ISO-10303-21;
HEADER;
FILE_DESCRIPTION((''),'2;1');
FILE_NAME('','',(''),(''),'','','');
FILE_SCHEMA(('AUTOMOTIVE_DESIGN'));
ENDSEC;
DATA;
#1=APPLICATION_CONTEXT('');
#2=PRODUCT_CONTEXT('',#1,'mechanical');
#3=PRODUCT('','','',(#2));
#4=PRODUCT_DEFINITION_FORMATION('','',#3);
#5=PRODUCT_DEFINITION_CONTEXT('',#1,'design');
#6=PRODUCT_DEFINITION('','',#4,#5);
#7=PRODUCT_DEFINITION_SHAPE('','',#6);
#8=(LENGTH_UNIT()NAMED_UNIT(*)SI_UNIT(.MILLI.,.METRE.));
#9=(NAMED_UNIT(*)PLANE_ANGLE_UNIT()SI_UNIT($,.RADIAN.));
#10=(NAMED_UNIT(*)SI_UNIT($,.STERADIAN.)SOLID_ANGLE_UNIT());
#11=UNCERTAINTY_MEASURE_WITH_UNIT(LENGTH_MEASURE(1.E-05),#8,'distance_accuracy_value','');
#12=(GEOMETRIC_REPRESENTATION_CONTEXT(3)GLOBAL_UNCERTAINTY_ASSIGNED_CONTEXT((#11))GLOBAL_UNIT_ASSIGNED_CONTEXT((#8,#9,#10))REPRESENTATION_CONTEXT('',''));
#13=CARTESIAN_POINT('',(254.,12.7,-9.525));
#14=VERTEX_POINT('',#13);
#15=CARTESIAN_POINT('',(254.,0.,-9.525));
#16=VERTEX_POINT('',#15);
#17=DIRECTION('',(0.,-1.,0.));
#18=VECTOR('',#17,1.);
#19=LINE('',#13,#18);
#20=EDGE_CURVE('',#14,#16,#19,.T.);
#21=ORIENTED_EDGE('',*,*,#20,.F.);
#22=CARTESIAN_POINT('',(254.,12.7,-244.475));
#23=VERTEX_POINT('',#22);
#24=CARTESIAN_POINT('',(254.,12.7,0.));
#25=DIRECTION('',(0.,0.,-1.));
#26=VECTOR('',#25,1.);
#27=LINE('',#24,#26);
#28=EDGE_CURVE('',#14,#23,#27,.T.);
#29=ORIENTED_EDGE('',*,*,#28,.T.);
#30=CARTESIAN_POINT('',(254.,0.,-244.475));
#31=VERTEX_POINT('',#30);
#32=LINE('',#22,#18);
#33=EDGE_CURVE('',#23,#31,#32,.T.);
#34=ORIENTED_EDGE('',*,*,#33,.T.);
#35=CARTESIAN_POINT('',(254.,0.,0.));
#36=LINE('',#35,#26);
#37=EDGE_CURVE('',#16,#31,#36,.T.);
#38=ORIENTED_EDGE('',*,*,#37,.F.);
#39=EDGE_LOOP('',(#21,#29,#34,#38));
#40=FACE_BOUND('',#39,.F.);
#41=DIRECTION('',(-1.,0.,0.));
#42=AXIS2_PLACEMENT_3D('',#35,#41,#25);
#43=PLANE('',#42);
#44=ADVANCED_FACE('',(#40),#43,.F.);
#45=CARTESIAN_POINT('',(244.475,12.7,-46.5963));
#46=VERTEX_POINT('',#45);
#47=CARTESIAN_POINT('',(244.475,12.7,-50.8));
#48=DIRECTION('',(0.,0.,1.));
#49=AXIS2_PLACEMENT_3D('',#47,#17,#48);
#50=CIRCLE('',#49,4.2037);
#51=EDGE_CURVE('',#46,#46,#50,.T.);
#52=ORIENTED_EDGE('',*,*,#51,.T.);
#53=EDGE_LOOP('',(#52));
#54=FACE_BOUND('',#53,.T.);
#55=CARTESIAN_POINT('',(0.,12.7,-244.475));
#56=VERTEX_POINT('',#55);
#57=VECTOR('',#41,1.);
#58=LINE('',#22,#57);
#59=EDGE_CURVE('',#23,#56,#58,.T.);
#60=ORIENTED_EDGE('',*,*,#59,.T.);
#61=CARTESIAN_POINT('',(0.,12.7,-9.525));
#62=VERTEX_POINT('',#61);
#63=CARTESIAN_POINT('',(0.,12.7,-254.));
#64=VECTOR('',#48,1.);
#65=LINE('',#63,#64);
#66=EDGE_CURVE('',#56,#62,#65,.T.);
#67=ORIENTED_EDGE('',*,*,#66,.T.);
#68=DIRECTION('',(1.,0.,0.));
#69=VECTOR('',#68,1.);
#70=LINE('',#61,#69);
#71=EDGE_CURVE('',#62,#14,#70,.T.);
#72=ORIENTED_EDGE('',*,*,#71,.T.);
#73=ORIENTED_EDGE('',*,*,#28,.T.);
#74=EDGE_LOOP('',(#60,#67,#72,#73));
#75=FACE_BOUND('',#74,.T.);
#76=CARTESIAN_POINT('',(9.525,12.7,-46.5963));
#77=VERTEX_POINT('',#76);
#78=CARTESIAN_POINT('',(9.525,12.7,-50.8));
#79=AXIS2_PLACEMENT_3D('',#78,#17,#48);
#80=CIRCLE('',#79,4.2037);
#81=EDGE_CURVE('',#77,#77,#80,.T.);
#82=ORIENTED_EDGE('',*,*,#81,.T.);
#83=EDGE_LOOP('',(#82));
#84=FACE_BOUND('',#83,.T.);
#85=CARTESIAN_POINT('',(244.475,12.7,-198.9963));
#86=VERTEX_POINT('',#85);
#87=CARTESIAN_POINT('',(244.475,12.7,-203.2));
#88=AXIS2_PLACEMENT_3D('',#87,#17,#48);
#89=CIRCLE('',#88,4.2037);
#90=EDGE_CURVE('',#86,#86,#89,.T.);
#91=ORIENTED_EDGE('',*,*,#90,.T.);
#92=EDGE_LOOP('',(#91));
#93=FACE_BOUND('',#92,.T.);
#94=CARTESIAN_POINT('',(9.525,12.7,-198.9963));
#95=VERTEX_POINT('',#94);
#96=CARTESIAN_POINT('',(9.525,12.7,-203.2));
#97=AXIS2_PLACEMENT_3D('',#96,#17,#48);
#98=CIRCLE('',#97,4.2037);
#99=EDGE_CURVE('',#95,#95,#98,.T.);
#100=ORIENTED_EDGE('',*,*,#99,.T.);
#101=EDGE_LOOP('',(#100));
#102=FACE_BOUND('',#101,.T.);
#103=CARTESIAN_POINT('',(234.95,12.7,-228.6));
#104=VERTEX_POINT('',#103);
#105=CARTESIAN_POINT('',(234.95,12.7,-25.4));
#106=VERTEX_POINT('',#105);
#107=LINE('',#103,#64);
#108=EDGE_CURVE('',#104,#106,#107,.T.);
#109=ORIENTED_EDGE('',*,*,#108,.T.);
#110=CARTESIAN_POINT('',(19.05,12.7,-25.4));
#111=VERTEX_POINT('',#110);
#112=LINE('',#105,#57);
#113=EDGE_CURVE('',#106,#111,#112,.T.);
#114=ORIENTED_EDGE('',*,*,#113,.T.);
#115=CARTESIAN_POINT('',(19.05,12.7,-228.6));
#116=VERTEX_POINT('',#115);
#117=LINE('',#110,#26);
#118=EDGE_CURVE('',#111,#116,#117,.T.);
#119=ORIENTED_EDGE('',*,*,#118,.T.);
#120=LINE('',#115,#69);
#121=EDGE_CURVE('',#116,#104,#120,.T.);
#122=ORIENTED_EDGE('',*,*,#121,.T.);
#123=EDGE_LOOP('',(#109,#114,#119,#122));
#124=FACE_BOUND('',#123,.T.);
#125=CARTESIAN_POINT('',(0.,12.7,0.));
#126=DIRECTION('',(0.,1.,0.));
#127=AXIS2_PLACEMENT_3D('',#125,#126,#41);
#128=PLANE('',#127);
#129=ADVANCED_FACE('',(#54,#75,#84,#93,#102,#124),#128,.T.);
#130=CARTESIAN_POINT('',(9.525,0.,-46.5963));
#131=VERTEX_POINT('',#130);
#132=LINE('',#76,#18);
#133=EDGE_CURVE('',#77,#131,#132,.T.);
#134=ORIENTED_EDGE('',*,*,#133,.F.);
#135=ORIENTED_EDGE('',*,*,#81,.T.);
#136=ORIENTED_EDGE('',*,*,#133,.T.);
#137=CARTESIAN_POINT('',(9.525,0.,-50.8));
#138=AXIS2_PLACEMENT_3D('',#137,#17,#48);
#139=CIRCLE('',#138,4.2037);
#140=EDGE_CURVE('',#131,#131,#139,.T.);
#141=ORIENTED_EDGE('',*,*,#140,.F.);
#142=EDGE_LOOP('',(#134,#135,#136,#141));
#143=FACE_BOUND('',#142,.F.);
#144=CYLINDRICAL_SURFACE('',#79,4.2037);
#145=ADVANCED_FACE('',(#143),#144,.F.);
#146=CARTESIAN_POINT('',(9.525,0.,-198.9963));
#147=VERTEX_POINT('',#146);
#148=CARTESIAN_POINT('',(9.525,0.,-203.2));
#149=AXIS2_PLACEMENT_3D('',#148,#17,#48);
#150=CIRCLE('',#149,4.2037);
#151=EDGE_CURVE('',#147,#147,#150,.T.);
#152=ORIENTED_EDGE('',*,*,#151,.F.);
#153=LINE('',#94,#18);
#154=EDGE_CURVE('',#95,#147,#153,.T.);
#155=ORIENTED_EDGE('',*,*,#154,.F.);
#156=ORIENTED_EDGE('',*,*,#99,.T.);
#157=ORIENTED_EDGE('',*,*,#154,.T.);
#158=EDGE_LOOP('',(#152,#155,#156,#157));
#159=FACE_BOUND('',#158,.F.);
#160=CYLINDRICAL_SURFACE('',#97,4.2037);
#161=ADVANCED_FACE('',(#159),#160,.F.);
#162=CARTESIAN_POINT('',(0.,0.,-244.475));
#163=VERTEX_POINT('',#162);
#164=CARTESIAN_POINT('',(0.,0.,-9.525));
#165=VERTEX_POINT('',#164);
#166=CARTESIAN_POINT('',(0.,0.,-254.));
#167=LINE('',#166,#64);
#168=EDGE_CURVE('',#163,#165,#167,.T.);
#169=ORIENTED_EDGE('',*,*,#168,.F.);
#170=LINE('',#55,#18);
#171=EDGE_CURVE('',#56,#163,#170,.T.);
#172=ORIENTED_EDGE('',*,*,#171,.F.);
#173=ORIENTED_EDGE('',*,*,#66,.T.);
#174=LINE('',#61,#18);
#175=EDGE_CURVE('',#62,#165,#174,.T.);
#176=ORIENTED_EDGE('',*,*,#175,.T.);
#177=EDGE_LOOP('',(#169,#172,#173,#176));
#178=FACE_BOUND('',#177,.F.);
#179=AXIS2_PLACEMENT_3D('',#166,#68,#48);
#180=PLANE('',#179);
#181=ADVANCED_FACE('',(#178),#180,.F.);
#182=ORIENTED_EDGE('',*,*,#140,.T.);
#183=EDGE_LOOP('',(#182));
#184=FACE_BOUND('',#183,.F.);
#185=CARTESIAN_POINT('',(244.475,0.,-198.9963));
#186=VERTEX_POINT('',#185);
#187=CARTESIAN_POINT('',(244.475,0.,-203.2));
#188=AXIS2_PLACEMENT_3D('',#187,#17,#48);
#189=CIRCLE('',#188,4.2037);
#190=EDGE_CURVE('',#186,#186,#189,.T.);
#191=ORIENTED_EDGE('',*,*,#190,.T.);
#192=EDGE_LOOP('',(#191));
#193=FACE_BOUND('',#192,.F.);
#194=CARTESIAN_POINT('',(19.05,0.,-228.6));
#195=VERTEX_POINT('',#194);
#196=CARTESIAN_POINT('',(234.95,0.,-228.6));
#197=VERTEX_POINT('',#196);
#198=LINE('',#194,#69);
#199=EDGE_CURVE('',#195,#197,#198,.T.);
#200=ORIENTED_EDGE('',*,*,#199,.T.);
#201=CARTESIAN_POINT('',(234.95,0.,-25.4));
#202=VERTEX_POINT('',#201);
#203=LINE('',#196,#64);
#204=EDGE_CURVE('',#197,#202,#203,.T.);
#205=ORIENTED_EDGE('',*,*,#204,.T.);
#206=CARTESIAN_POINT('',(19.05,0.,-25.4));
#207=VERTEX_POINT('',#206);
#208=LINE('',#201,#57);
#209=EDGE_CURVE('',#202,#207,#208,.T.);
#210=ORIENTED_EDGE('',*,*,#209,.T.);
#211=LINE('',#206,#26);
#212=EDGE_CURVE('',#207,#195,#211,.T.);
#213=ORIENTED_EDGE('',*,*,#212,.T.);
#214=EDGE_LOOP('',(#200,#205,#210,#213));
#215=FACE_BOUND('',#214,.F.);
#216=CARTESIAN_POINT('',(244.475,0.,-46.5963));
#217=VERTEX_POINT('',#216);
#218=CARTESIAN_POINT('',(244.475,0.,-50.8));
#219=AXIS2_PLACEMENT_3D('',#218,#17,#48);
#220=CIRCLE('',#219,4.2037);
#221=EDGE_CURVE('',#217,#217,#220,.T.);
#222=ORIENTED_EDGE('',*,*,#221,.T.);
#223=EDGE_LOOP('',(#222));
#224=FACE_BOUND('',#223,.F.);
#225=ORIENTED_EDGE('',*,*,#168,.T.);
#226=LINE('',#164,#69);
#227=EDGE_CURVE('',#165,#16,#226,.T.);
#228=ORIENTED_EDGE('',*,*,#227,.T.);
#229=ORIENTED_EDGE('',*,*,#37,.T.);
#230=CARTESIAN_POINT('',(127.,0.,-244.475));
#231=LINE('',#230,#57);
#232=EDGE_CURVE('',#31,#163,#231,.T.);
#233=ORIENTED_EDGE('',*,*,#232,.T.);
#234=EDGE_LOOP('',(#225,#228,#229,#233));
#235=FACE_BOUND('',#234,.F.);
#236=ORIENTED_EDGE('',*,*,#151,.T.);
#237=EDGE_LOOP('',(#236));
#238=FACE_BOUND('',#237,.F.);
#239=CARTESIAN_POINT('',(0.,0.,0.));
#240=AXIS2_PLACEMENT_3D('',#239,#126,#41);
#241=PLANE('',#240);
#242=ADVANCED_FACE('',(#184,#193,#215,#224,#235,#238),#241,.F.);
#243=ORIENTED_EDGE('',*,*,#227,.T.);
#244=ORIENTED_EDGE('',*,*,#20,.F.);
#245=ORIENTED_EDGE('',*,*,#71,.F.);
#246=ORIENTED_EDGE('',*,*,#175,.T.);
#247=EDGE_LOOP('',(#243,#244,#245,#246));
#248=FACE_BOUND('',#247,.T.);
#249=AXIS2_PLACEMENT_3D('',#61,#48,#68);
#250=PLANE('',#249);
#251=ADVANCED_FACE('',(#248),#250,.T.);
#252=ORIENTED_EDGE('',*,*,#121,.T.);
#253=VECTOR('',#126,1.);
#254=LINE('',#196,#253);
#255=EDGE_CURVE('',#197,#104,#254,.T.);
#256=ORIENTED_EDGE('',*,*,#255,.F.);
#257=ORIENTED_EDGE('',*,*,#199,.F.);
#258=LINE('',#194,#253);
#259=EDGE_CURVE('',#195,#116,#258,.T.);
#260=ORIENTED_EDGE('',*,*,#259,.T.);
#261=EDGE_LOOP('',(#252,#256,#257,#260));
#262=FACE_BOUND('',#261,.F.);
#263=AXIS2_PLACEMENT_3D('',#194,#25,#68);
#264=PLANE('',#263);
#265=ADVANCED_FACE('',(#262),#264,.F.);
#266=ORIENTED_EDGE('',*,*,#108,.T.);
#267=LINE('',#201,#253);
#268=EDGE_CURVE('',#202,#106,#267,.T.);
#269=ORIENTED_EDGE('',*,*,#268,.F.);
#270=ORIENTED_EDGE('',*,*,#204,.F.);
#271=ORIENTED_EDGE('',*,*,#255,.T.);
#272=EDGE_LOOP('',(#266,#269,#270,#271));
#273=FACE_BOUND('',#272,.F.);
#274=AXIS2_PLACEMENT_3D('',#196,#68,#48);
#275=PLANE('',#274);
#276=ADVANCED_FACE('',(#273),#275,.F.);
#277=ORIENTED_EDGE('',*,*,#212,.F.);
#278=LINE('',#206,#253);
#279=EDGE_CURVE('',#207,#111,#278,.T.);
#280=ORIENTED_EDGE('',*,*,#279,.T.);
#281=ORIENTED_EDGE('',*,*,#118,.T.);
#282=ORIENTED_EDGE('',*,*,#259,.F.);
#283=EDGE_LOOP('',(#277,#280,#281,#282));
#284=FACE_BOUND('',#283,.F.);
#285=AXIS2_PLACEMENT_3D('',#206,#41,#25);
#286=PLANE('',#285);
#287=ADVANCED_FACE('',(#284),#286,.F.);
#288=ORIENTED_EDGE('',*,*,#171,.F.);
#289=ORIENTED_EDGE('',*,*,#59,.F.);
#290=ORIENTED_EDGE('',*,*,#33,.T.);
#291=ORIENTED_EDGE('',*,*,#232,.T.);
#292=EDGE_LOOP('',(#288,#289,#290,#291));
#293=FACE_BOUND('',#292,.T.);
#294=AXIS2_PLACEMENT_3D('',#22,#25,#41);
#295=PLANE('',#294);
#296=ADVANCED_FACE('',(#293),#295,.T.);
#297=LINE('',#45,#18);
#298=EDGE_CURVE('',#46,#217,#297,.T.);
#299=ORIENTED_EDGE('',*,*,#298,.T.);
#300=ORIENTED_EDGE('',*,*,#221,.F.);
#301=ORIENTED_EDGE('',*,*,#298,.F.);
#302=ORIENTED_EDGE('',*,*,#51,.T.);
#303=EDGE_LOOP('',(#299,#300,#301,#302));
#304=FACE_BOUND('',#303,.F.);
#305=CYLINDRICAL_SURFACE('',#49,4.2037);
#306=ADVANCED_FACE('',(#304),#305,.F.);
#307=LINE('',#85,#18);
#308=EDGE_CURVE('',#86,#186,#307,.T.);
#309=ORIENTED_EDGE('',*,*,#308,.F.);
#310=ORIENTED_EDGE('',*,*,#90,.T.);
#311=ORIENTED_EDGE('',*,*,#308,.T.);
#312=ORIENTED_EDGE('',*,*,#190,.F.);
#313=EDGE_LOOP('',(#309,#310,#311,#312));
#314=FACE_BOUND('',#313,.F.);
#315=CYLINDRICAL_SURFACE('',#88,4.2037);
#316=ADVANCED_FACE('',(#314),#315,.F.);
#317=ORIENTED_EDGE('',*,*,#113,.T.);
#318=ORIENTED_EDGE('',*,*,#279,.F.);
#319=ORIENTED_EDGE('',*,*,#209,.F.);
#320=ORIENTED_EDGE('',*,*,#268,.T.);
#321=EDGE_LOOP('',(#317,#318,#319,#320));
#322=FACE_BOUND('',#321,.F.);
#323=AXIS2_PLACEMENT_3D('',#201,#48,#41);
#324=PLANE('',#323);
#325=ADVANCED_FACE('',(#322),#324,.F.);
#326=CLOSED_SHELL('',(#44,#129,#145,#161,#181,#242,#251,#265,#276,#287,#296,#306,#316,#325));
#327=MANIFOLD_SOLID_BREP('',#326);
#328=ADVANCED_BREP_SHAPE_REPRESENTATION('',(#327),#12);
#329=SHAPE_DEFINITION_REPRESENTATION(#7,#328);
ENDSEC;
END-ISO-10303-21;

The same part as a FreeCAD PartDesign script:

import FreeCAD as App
import Part
import Sketcher

V = App.Vector
Q = App.Units.Quantity


def add_polygon(sketch, points):
    """Adds a closed chain of lines whose ends are joined by coincident constraints."""
    first, n = sketch.GeometryCount, len(points)
    for a, b in zip(points, points[1:] + points[:1]):
        sketch.addGeometry(Part.LineSegment(App.Vector(*a, 0), App.Vector(*b, 0)), False)
    for i in range(n):
        sketch.addConstraint(Sketcher.Constraint("Coincident", first + i, 2, first + (i + 1) % n, 1))

doc = App.newDocument("Part")
params = doc.addObject("Spreadsheet::Sheet", "Params")
for row, (alias, value) in enumerate([
    ("sketch1_width", "10 in"),
    ("pad1_length", "0.5 in"),
    ("sketch2_diameter", "0.331 in"),
    ("hole_diameter", "0.331 in"),
    ("sketch3_width", "10 in"),
    ("sketch3_height", "0.375 in"),
], start=1):
    params.set(f"A{row}", alias)
    params.set(f"B{row}", "=" + value)
    params.setAlias(f"B{row}", alias)

body = doc.addObject("PartDesign::Body", "Body")

sketch1 = body.newObject("Sketcher::SketchObject", "Sketch")
sketch1.AttachmentSupport = (doc.getObject("XZ_Plane"), [""])
sketch1.MapMode = "FlatFace"
add_polygon(sketch1, [(0, -254), (0, 0), (254, 0), (254, -254)])
add_polygon(sketch1, [(19.05, -25.4), (19.05, -228.6), (234.95, -228.6), (234.95, -25.4)])
sketch1.addConstraint([
    Sketcher.Constraint("Vertical", 0),
    Sketcher.Constraint("Horizontal", 1),
    Sketcher.Constraint("Vertical", 2),
    Sketcher.Constraint("Horizontal", 3),
    Sketcher.Constraint("Vertical", 4),
    Sketcher.Constraint("Horizontal", 5),
    Sketcher.Constraint("Vertical", 6),
    Sketcher.Constraint("Horizontal", 7),
    Sketcher.Constraint("Coincident", 0, 2, -1, 1),
    Sketcher.Constraint("Equal", 3, 0),
    Sketcher.Constraint("DistanceX", 1, 1, 1, 2, Q("10 in")),
    Sketcher.Constraint("DistanceY", 6, 2, -1, 1, Q("1 in")),
    Sketcher.Constraint("DistanceY", 3, 2, 4, 2, Q("1 in")),
    Sketcher.Constraint("DistanceX", -1, 1, 4, 2, Q("0.75 in")),
    Sketcher.Constraint("DistanceX", 5, 2, 2, 2, Q("0.75 in")),
])
sketch1.setExpression("Constraints[18]", "Params.sketch1_width")
pad1 = body.newObject("PartDesign::Pad", "Pad")
pad1.Profile = sketch1
pad1.setExpression("Length", "Params.pad1_length")
pad1.Reversed = True

sketch2 = body.newObject("Sketcher::SketchObject", "Sketch001")
sketch2.AttachmentSupport = (doc.getObject("XZ_Plane"), [""])
sketch2.MapMode = "FlatFace"
sketch2.AttachmentOffset = App.Placement(V(0, 0, -0.5 * 25.4), App.Rotation())
sketch2.addGeometry([
    Part.Circle(V(9.525, -50.8, 0), V(0, 0, 1), 4.2037),
    Part.Circle(V(9.525, -203.2, 0), V(0, 0, 1), 4.2037),
    Part.Circle(V(244.475, -203.2, 0), V(0, 0, 1), 4.2037),
    Part.Circle(V(244.475, -50.8, 0), V(0, 0, 1), 4.2037),
], False)
sketch2.addConstraint([
    Sketcher.Constraint("Equal", 0, 1),
    Sketcher.Constraint("Equal", 1, 2),
    Sketcher.Constraint("Equal", 2, 3),
    Sketcher.Constraint("Horizontal", 1, 3, 2, 3),
    Sketcher.Constraint("Horizontal", 0, 3, 3, 3),
    Sketcher.Constraint("Vertical", 0, 3, 1, 3),
    Sketcher.Constraint("Vertical", 2, 3, 3, 3),
    Sketcher.Constraint("Diameter", 0, Q("0.331 in")),
    Sketcher.Constraint("DistanceY", 0, 3, -1, 1, Q("2 in")),
    Sketcher.Constraint("DistanceY", 1, 3, -1, 1, Q("8 in")),
    Sketcher.Constraint("DistanceX", 1, 3, 2, 3, Q("9.25 in")),
    Sketcher.Constraint("DistanceX", -1, 1, 0, 3, Q("0.375 in")),
])
sketch2.setExpression("Constraints[7]", "Params.sketch2_diameter")
doc.recompute()
hole = body.newObject("PartDesign::Hole", "Hole")
hole.Profile = sketch2
hole.ThreadType = "None"
hole.setExpression("Diameter", "Params.hole_diameter")
hole.DepthType = "ThroughAll"
hole.Reversed = True

sketch3 = body.newObject("Sketcher::SketchObject", "Sketch002")
sketch3.AttachmentSupport = (doc.getObject("XZ_Plane"), [""])
sketch3.MapMode = "FlatFace"
sketch3.AttachmentOffset = App.Placement(V(0, 0, -0.5 * 25.4), App.Rotation())
add_polygon(sketch3, [(0, -244.475), (254, -244.475), (254, -254), (0, -254)])
add_polygon(sketch3, [(254, -9.525), (0, -9.525), (0, 0), (254, 0)])
sketch3.addConstraint([
    Sketcher.Constraint("Horizontal", 0),
    Sketcher.Constraint("Vertical", 1),
    Sketcher.Constraint("Horizontal", 2),
    Sketcher.Constraint("Vertical", 3),
    Sketcher.Constraint("Horizontal", 4),
    Sketcher.Constraint("Vertical", 5),
    Sketcher.Constraint("Horizontal", 6),
    Sketcher.Constraint("Vertical", 7),
    Sketcher.Constraint("Coincident", 5, 2, -1, 1),
    Sketcher.Constraint("PointOnObject", 2, 2, -2),
    Sketcher.Constraint("Vertical", 1, 2, 6, 2),
    Sketcher.Constraint("Equal", 3, 5),
    Sketcher.Constraint("DistanceX", 0, 1, 0, 2, Q("10 in")),
    Sketcher.Constraint("DistanceY", 1, 2, -1, 1, Q("10 in")),
    Sketcher.Constraint("DistanceY", 1, 2, 1, 1, Q("0.375 in")),
])
sketch3.setExpression("Constraints[20]", "Params.sketch3_width")
sketch3.setExpression("Constraints[22]", "Params.sketch3_height")
pocket1 = body.newObject("PartDesign::Pocket", "Pocket")
pocket1.Profile = sketch3
pocket1.Type = "ThroughAll"
pocket1.Reversed = True

doc.recompute()
